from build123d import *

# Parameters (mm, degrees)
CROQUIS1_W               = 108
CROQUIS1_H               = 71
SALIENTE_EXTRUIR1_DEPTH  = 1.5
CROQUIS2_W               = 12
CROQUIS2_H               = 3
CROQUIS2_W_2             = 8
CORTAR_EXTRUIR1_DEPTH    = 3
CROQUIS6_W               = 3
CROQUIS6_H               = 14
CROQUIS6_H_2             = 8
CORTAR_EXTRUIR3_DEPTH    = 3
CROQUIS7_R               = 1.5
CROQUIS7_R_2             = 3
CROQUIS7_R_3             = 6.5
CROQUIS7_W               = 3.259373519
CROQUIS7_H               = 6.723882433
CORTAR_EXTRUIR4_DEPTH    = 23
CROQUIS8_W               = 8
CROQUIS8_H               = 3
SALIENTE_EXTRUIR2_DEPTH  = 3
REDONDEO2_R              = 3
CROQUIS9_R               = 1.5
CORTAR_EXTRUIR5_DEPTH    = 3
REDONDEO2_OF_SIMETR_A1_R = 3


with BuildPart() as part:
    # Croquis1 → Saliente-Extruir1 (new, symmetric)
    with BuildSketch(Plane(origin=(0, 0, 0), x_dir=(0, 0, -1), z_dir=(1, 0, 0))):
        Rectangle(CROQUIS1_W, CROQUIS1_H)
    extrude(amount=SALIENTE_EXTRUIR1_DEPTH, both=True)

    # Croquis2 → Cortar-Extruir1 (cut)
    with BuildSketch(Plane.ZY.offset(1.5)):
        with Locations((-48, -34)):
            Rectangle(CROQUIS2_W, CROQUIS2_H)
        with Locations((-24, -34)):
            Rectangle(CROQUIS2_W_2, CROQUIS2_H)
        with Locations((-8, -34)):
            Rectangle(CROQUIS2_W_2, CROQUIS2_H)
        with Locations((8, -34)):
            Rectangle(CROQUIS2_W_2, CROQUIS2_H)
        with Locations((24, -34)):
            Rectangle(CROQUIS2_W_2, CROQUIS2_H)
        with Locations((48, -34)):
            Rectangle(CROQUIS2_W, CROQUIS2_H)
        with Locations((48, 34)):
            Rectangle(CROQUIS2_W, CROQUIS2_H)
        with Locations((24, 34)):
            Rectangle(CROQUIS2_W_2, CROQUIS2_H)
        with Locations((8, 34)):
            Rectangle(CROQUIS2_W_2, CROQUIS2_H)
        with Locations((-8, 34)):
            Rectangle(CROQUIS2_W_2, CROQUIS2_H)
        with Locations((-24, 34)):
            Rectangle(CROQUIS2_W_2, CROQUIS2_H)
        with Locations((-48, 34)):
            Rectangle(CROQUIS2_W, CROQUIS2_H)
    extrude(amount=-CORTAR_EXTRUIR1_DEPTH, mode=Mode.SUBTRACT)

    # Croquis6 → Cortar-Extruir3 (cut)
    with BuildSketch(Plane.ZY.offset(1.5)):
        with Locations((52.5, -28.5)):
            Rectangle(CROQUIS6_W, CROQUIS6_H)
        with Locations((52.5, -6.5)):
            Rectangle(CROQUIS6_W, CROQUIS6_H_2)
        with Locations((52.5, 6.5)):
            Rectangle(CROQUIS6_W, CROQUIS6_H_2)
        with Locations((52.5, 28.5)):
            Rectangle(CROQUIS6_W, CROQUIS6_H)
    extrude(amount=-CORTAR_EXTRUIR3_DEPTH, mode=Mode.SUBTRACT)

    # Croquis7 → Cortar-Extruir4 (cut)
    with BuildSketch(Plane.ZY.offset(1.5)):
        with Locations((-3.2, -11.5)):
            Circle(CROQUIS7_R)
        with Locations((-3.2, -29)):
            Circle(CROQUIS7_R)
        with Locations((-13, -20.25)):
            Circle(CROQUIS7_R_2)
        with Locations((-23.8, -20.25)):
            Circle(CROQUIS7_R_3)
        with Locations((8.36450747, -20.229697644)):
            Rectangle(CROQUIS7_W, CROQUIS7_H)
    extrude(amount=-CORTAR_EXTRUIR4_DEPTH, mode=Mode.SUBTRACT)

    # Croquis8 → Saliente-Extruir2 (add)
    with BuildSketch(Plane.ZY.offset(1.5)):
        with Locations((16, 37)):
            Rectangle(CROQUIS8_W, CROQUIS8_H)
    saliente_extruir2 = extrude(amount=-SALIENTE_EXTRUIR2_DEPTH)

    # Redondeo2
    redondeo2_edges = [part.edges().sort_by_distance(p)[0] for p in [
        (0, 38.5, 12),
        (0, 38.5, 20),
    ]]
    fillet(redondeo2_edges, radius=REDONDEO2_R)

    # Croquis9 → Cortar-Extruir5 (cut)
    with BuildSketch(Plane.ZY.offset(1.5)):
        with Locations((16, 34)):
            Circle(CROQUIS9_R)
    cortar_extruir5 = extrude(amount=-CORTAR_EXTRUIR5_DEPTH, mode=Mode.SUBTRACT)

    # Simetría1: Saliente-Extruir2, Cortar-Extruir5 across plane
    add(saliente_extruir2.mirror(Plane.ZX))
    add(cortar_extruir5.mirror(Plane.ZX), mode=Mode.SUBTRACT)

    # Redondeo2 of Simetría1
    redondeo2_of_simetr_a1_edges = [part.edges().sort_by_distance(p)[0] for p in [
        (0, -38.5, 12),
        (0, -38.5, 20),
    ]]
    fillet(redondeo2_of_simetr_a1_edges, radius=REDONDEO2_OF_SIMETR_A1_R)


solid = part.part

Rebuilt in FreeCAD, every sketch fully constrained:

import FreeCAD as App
import Part
import Sketcher

V = App.Vector


def edges_at(feature, points):
    """Names of the edges that pass closest to the given points."""
    edges = feature.Shape.Edges
    near = lambda p: min(range(len(edges)), key=lambda i: edges[i].distToShape(Part.Vertex(*p))[0])
    return sorted({f"Edge{near(p) + 1}" for p in points})

doc = App.newDocument("Part")
body = doc.addObject("PartDesign::Body", "Body")

# Sketch on YZ plane
sketch1 = body.newObject("Sketcher::SketchObject", "Sketch")
sketch1.AttachmentSupport = (doc.getObject("YZ_Plane"), [""])
sketch1.MapMode = "FlatFace"
sketch1.addGeometry([
    Part.LineSegment(V(36, 54, 0), V(-36, 54, 0)),
    Part.LineSegment(V(-36, 54, 0), V(-36, -54, 0)),
    Part.LineSegment(V(-36, -54, 0), V(36, -54, 0)),
    Part.LineSegment(V(36, -54, 0), V(36, 54, 0)),
], False)
sketch1.addConstraint([
    Sketcher.Constraint("Coincident", 0, 2, 1, 1),
    Sketcher.Constraint("Coincident", 1, 2, 2, 1),
    Sketcher.Constraint("Coincident", 2, 2, 3, 1),
    Sketcher.Constraint("Coincident", 3, 2, 0, 1),
    Sketcher.Constraint("Horizontal", 0),
    Sketcher.Constraint("Vertical", 1),
    Sketcher.Constraint("Horizontal", 2),
    Sketcher.Constraint("Vertical", 3),
    Sketcher.Constraint("Symmetric", 0, 2, 2, 2, -1, 1),
    Sketcher.Constraint("DistanceX", 0, 2, 0, 1, 71.0),
    Sketcher.Constraint("DistanceY", 1, 2, 1, 1, 108.0),
])
pad1 = body.newObject("PartDesign::Pad", "Pad")
pad1.Profile = sketch1
pad1.Length = 3
pad1.Midplane = True

# Sketch on YZ plane
sketch2 = body.newObject("Sketcher::SketchObject", "Sketch001")
sketch2.AttachmentSupport = (doc.getObject("YZ_Plane"), [""])
sketch2.MapMode = "FlatFace"
sketch2.AttachmentOffset = App.Placement(V(0, 0, -1.5), App.Rotation())
sketch2.addGeometry([
    Part.LineSegment(V(-32.5, -54, 0), V(-35.5, -54, 0)),  # 0
    Part.LineSegment(V(-35.5, -54, 0), V(-35.5, -42, 0)),  # 1
    Part.LineSegment(V(-35.5, -42, 0), V(-32.5, -42, 0)),  # 2
    Part.LineSegment(V(-32.5, -42, 0), V(-32.5, -54, 0)),  # 3
    Part.LineSegment(V(-32.5, -28, 0), V(-35.5, -28, 0)),  # 4
    Part.LineSegment(V(-35.5, -28, 0), V(-35.5, -20, 0)),  # 5
    Part.LineSegment(V(-35.5, -20, 0), V(-32.5, -20, 0)),  # 6
    Part.LineSegment(V(-32.5, -20, 0), V(-32.5, -28, 0)),  # 7
    Part.LineSegment(V(-32.5, -12, 0), V(-35.5, -12, 0)),  # 8
    Part.LineSegment(V(-35.5, -12, 0), V(-35.5, -4, 0)),  # 9
    Part.LineSegment(V(-35.5, -4, 0), V(-32.5, -4, 0)),  # 10
    Part.LineSegment(V(-32.5, -4, 0), V(-32.5, -12, 0)),  # 11
    Part.LineSegment(V(-32.5, 4, 0), V(-35.5, 4, 0)),  # 12
    Part.LineSegment(V(-35.5, 4, 0), V(-35.5, 12, 0)),  # 13
    Part.LineSegment(V(-35.5, 12, 0), V(-32.5, 12, 0)),  # 14
    Part.LineSegment(V(-32.5, 12, 0), V(-32.5, 4, 0)),  # 15
    Part.LineSegment(V(-32.5, 20, 0), V(-35.5, 20, 0)),  # 16
    Part.LineSegment(V(-35.5, 20, 0), V(-35.5, 28, 0)),  # 17
    Part.LineSegment(V(-35.5, 28, 0), V(-32.5, 28, 0)),  # 18
    Part.LineSegment(V(-32.5, 28, 0), V(-32.5, 20, 0)),  # 19
    Part.LineSegment(V(-32.5, 42, 0), V(-35.5, 42, 0)),  # 20
    Part.LineSegment(V(-35.5, 42, 0), V(-35.5, 54, 0)),  # 21
    Part.LineSegment(V(-35.5, 54, 0), V(-32.5, 54, 0)),  # 22
    Part.LineSegment(V(-32.5, 54, 0), V(-32.5, 42, 0)),  # 23
    Part.LineSegment(V(35.5, 42, 0), V(32.5, 42, 0)),  # 24
    Part.LineSegment(V(32.5, 42, 0), V(32.5, 54, 0)),  # 25
    Part.LineSegment(V(32.5, 54, 0), V(35.5, 54, 0)),  # 26
    Part.LineSegment(V(35.5, 54, 0), V(35.5, 42, 0)),  # 27
    Part.LineSegment(V(35.5, 20, 0), V(32.5, 20, 0)),  # 28
    Part.LineSegment(V(32.5, 20, 0), V(32.5, 28, 0)),  # 29
    Part.LineSegment(V(32.5, 28, 0), V(35.5, 28, 0)),  # 30
    Part.LineSegment(V(35.5, 28, 0), V(35.5, 20, 0)),  # 31
    Part.LineSegment(V(35.5, 4, 0), V(32.5, 4, 0)),  # 32
    Part.LineSegment(V(32.5, 4, 0), V(32.5, 12, 0)),  # 33
    Part.LineSegment(V(32.5, 12, 0), V(35.5, 12, 0)),  # 34
    Part.LineSegment(V(35.5, 12, 0), V(35.5, 4, 0)),  # 35
    Part.LineSegment(V(35.5, -12, 0), V(32.5, -12, 0)),  # 36
    Part.LineSegment(V(32.5, -12, 0), V(32.5, -4, 0)),  # 37
    Part.LineSegment(V(32.5, -4, 0), V(35.5, -4, 0)),  # 38
    Part.LineSegment(V(35.5, -4, 0), V(35.5, -12, 0)),  # 39
    Part.LineSegment(V(35.5, -28, 0), V(32.5, -28, 0)),  # 40
    Part.LineSegment(V(32.5, -28, 0), V(32.5, -20, 0)),  # 41
    Part.LineSegment(V(32.5, -20, 0), V(35.5, -20, 0)),  # 42
    Part.LineSegment(V(35.5, -20, 0), V(35.5, -28, 0)),  # 43
    Part.LineSegment(V(35.5, -54, 0), V(32.5, -54, 0)),  # 44
    Part.LineSegment(V(32.5, -54, 0), V(32.5, -42, 0)),  # 45
    Part.LineSegment(V(32.5, -42, 0), V(35.5, -42, 0)),  # 46
    Part.LineSegment(V(35.5, -42, 0), V(35.5, -54, 0)),  # 47
], False)
sketch2.addConstraint([
    Sketcher.Constraint("Coincident", 0, 2, 1, 1),
    Sketcher.Constraint("Coincident", 1, 2, 2, 1),
    Sketcher.Constraint("Coincident", 2, 2, 3, 1),
    Sketcher.Constraint("Coincident", 3, 2, 0, 1),
    Sketcher.Constraint("Coincident", 4, 2, 5, 1),
    Sketcher.Constraint("Coincident", 5, 2, 6, 1),
    Sketcher.Constraint("Coincident", 6, 2, 7, 1),
    Sketcher.Constraint("Coincident", 7, 2, 4, 1),
    Sketcher.Constraint("Coincident", 8, 2, 9, 1),
    Sketcher.Constraint("Coincident", 9, 2, 10, 1),
    Sketcher.Constraint("Coincident", 10, 2, 11, 1),
    Sketcher.Constraint("Coincident", 11, 2, 8, 1),
    Sketcher.Constraint("Coincident", 12, 2, 13, 1),
    Sketcher.Constraint("Coincident", 13, 2, 14, 1),
    Sketcher.Constraint("Coincident", 14, 2, 15, 1),
    Sketcher.Constraint("Coincident", 15, 2, 12, 1),
    Sketcher.Constraint("Coincident", 16, 2, 17, 1),
    Sketcher.Constraint("Coincident", 17, 2, 18, 1),
    Sketcher.Constraint("Coincident", 18, 2, 19, 1),
    Sketcher.Constraint("Coincident", 19, 2, 16, 1),
    Sketcher.Constraint("Coincident", 20, 2, 21, 1),
    Sketcher.Constraint("Coincident", 21, 2, 22, 1),
    Sketcher.Constraint("Coincident", 22, 2, 23, 1),
    Sketcher.Constraint("Coincident", 23, 2, 20, 1),
    Sketcher.Constraint("Coincident", 24, 2, 25, 1),
    Sketcher.Constraint("Coincident", 25, 2, 26, 1),
    Sketcher.Constraint("Coincident", 26, 2, 27, 1),
    Sketcher.Constraint("Coincident", 27, 2, 24, 1),
    Sketcher.Constraint("Coincident", 28, 2, 29, 1),
    Sketcher.Constraint("Coincident", 29, 2, 30, 1),
    Sketcher.Constraint("Coincident", 30, 2, 31, 1),
    Sketcher.Constraint("Coincident", 31, 2, 28, 1),
    Sketcher.Constraint("Coincident", 32, 2, 33, 1),
    Sketcher.Constraint("Coincident", 33, 2, 34, 1),
    Sketcher.Constraint("Coincident", 34, 2, 35, 1),
    Sketcher.Constraint("Coincident", 35, 2, 32, 1),
    Sketcher.Constraint("Coincident", 36, 2, 37, 1),
    Sketcher.Constraint("Coincident", 37, 2, 38, 1),
    Sketcher.Constraint("Coincident", 38, 2, 39, 1),
    Sketcher.Constraint("Coincident", 39, 2, 36, 1),
    Sketcher.Constraint("Coincident", 40, 2, 41, 1),
    Sketcher.Constraint("Coincident", 41, 2, 42, 1),
    Sketcher.Constraint("Coincident", 42, 2, 43, 1),
    Sketcher.Constraint("Coincident", 43, 2, 40, 1),
    Sketcher.Constraint("Coincident", 44, 2, 45, 1),
    Sketcher.Constraint("Coincident", 45, 2, 46, 1),
    Sketcher.Constraint("Coincident", 46, 2, 47, 1),
    Sketcher.Constraint("Coincident", 47, 2, 44, 1),
    Sketcher.Constraint("Horizontal", 0),
    Sketcher.Constraint("Vertical", 1),
    Sketcher.Constraint("Horizontal", 2),
    Sketcher.Constraint("Vertical", 3),
    Sketcher.Constraint("Horizontal", 4),
    Sketcher.Constraint("Vertical", 5),
    Sketcher.Constraint("Horizontal", 6),
    Sketcher.Constraint("Vertical", 7),
    Sketcher.Constraint("Horizontal", 8),
    Sketcher.Constraint("Vertical", 9),
    Sketcher.Constraint("Horizontal", 10),
    Sketcher.Constraint("Vertical", 11),
    Sketcher.Constraint("Horizontal", 12),
    Sketcher.Constraint("Vertical", 13),
    Sketcher.Constraint("Horizontal", 14),
    Sketcher.Constraint("Vertical", 15),
    Sketcher.Constraint("Horizontal", 16),
    Sketcher.Constraint("Vertical", 17),
    Sketcher.Constraint("Horizontal", 18),
    Sketcher.Constraint("Vertical", 19),
    Sketcher.Constraint("Horizontal", 20),
    Sketcher.Constraint("Vertical", 21),
    Sketcher.Constraint("Horizontal", 22),
    Sketcher.Constraint("Vertical", 23),
    Sketcher.Constraint("Horizontal", 24),
    Sketcher.Constraint("Vertical", 25),
    Sketcher.Constraint("Horizontal", 26),
    Sketcher.Constraint("Vertical", 27),
    Sketcher.Constraint("Horizontal", 28),
    Sketcher.Constraint("Vertical", 29),
    Sketcher.Constraint("Horizontal", 30),
    Sketcher.Constraint("Vertical", 31),
    Sketcher.Constraint("Horizontal", 32),
    Sketcher.Constraint("Vertical", 33),
    Sketcher.Constraint("Horizontal", 34),
    Sketcher.Constraint("Vertical", 35),
    Sketcher.Constraint("Horizontal", 36),
    Sketcher.Constraint("Vertical", 37),
    Sketcher.Constraint("Horizontal", 38),
    Sketcher.Constraint("Vertical", 39),
    Sketcher.Constraint("Horizontal", 40),
    Sketcher.Constraint("Vertical", 41),
    Sketcher.Constraint("Horizontal", 42),
    Sketcher.Constraint("Vertical", 43),
    Sketcher.Constraint("Horizontal", 44),
    Sketcher.Constraint("Vertical", 45),
    Sketcher.Constraint("Horizontal", 46),
    Sketcher.Constraint("Vertical", 47),
    Sketcher.Constraint("Symmetric", 2, 2, 24, 2, -1, 1),
    Sketcher.Constraint("Symmetric", 0, 2, 26, 2, -1, 1),
    Sketcher.Constraint("Symmetric", 6, 2, 28, 2, -1, 1),
    Sketcher.Constraint("Symmetric", 4, 2, 30, 2, -1, 1),
    Sketcher.Constraint("Symmetric", 10, 2, 32, 2, -1, 1),
    Sketcher.Constraint("Symmetric", 8, 2, 34, 2, -1, 1),
    Sketcher.Constraint("Symmetric", 14, 2, 36, 2, -1, 1),
    Sketcher.Constraint("Symmetric", 12, 2, 38, 2, -1, 1),
    Sketcher.Constraint("Symmetric", 18, 2, 40, 2, -1, 1),
    Sketcher.Constraint("Symmetric", 16, 2, 42, 2, -1, 1),
    Sketcher.Constraint("Symmetric", 22, 2, 44, 2, -1, 1),
    Sketcher.Constraint("Symmetric", 20, 2, 46, 2, -1, 1),
    Sketcher.Constraint("Symmetric", 23, 2, 24, 2, -2),
    Sketcher.Constraint("Symmetric", 21, 2, 26, 2, -2),
    Sketcher.Constraint("Symmetric", 19, 2, 28, 2, -2),
    Sketcher.Constraint("Symmetric", 17, 2, 30, 2, -2),
    Sketcher.Constraint("Symmetric", 15, 2, 32, 2, -2),
    Sketcher.Constraint("Symmetric", 13, 2, 34, 2, -2),
    Sketcher.Constraint("Vertical", 1, 2, 4, 2),
    Sketcher.Constraint("Vertical", 3, 2, 6, 2),
    Sketcher.Constraint("Vertical", 5, 2, 8, 2),
    Sketcher.Constraint("Vertical", 7, 2, 10, 2),
    Sketcher.Constraint("Equal", 7, 9),
    Sketcher.Constraint("DistanceX", 0, 2, 0, 1, 3.0),
    Sketcher.Constraint("DistanceY", 1, 1, 1, 2, 12.0),
    Sketcher.Constraint("DistanceY", 5, 1, 5, 2, 8.0),
    Sketcher.Constraint("DistanceY", 0, 2, -1, 1, 54.0),
    Sketcher.Constraint("DistanceY", 4, 2, -1, 1, 28.0),
    Sketcher.Constraint("DistanceY", 8, 2, -1, 1, 12.0),
    Sketcher.Constraint("DistanceX", 23, 2, 24, 2, 65.0),
])
pocket1 = body.newObject("PartDesign::Pocket", "Pocket")
pocket1.Profile = sketch2
pocket1.Length = 3
pocket1.Reversed = True

# Sketch on YZ plane
sketch3 = body.newObject("Sketcher::SketchObject", "Sketch002")
sketch3.AttachmentSupport = (doc.getObject("YZ_Plane"), [""])
sketch3.MapMode = "FlatFace"
sketch3.AttachmentOffset = App.Placement(V(0, 0, -1.5), App.Rotation())
sketch3.addGeometry([
    Part.LineSegment(V(-21.5, 51, 0), V(-35.5, 51, 0)),  # 0
    Part.LineSegment(V(-35.5, 51, 0), V(-35.5, 54, 0)),  # 1
    Part.LineSegment(V(-35.5, 54, 0), V(-21.5, 54, 0)),  # 2
    Part.LineSegment(V(-21.5, 54, 0), V(-21.5, 51, 0)),  # 3
    Part.LineSegment(V(-2.5, 51, 0), V(-10.5, 51, 0)),  # 4
    Part.LineSegment(V(-10.5, 51, 0), V(-10.5, 54, 0)),  # 5
    Part.LineSegment(V(-10.5, 54, 0), V(-2.5, 54, 0)),  # 6
    Part.LineSegment(V(-2.5, 54, 0), V(-2.5, 51, 0)),  # 7
    Part.LineSegment(V(10.5, 51, 0), V(2.5, 51, 0)),  # 8
    Part.LineSegment(V(2.5, 51, 0), V(2.5, 54, 0)),  # 9
    Part.LineSegment(V(2.5, 54, 0), V(10.5, 54, 0)),  # 10
    Part.LineSegment(V(10.5, 54, 0), V(10.5, 51, 0)),  # 11
    Part.LineSegment(V(35.5, 51, 0), V(21.5, 51, 0)),  # 12
    Part.LineSegment(V(21.5, 51, 0), V(21.5, 54, 0)),  # 13
    Part.LineSegment(V(21.5, 54, 0), V(35.5, 54, 0)),  # 14
    Part.LineSegment(V(35.5, 54, 0), V(35.5, 51, 0)),  # 15
], False)
sketch3.addConstraint([
    Sketcher.Constraint("Coincident", 0, 2, 1, 1),
    Sketcher.Constraint("Coincident", 1, 2, 2, 1),
    Sketcher.Constraint("Coincident", 2, 2, 3, 1),
    Sketcher.Constraint("Coincident", 3, 2, 0, 1),
    Sketcher.Constraint("Coincident", 4, 2, 5, 1),
    Sketcher.Constraint("Coincident", 5, 2, 6, 1),
    Sketcher.Constraint("Coincident", 6, 2, 7, 1),
    Sketcher.Constraint("Coincident", 7, 2, 4, 1),
    Sketcher.Constraint("Coincident", 8, 2, 9, 1),
    Sketcher.Constraint("Coincident", 9, 2, 10, 1),
    Sketcher.Constraint("Coincident", 10, 2, 11, 1),
    Sketcher.Constraint("Coincident", 11, 2, 8, 1),
    Sketcher.Constraint("Coincident", 12, 2, 13, 1),
    Sketcher.Constraint("Coincident", 13, 2, 14, 1),
    Sketcher.Constraint("Coincident", 14, 2, 15, 1),
    Sketcher.Constraint("Coincident", 15, 2, 12, 1),
    Sketcher.Constraint("Horizontal", 0),
    Sketcher.Constraint("Vertical", 1),
    Sketcher.Constraint("Horizontal", 2),
    Sketcher.Constraint("Vertical", 3),
    Sketcher.Constraint("Horizontal", 4),
    Sketcher.Constraint("Vertical", 5),
    Sketcher.Constraint("Horizontal", 6),
    Sketcher.Constraint("Vertical", 7),
    Sketcher.Constraint("Horizontal", 8),
    Sketcher.Constraint("Vertical", 9),
    Sketcher.Constraint("Horizontal", 10),
    Sketcher.Constraint("Vertical", 11),
    Sketcher.Constraint("Horizontal", 12),
    Sketcher.Constraint("Vertical", 13),
    Sketcher.Constraint("Horizontal", 14),
    Sketcher.Constraint("Vertical", 15),
    Sketcher.Constraint("Symmetric", 7, 2, 8, 2, -2),
    Sketcher.Constraint("Symmetric", 5, 2, 10, 2, -2),
    Sketcher.Constraint("Symmetric", 3, 2, 12, 2, -2),
    Sketcher.Constraint("Symmetric", 1, 2, 14, 2, -2),
    Sketcher.Constraint("Horizontal", 3, 2, 4, 2),
    Sketcher.Constraint("Horizontal", 2, 2, 5, 2),
    Sketcher.Constraint("DistanceX", 0, 2, 0, 1, 14.0),
    Sketcher.Constraint("DistanceX", 4, 2, 4, 1, 8.0),
    Sketcher.Constraint("DistanceY", 1, 1, 1, 2, 3.0),
    Sketcher.Constraint("DistanceY", -1, 1, 0, 2, 51.0),
    Sketcher.Constraint("DistanceX", 3, 2, 4, 2, 11.0),
    Sketcher.Constraint("DistanceX", 7, 2, 8, 2, 5.0),
])
pocket2 = body.newObject("PartDesign::Pocket", "Pocket001")
pocket2.Profile = sketch3
pocket2.Length = 3
pocket2.Reversed = True

# Sketch on YZ plane
sketch4 = body.newObject("Sketcher::SketchObject", "Sketch003")
sketch4.AttachmentSupport = (doc.getObject("YZ_Plane"), [""])
sketch4.MapMode = "FlatFace"
sketch4.AttachmentOffset = App.Placement(V(0, 0, -1.5), App.Rotation())
sketch4.addGeometry([
    Part.Circle(V(-11.5, -3.2, 0), V(0, 0, 1), 1.5),  # 0
    Part.Circle(V(-29, -3.2, 0), V(0, 0, 1), 1.5),  # 1
    Part.Circle(V(-20.2, -13, 0), V(0, 0, 1), 3),  # 2
    Part.Circle(V(-20.2, -23.8, 0), V(0, 0, 1), 6.5),  # 3
    Part.LineSegment(V(-16.9, 6.7, 0), V(-23.6, 6.7, 0)),  # 4
    Part.LineSegment(V(-23.6, 6.7, 0), V(-23.6, 10, 0)),  # 5
    Part.LineSegment(V(-23.6, 10, 0), V(-16.9, 10, 0)),  # 6
    Part.LineSegment(V(-16.9, 10, 0), V(-16.9, 6.7, 0)),  # 7
], False)
sketch4.addConstraint([
    Sketcher.Constraint("Coincident", 4, 2, 5, 1),
    Sketcher.Constraint("Coincident", 5, 2, 6, 1),
    Sketcher.Constraint("Coincident", 6, 2, 7, 1),
    Sketcher.Constraint("Coincident", 7, 2, 4, 1),
    Sketcher.Constraint("Horizontal", 4),
    Sketcher.Constraint("Vertical", 5),
    Sketcher.Constraint("Horizontal", 6),
    Sketcher.Constraint("Vertical", 7),
    Sketcher.Constraint("Equal", 0, 1),
    Sketcher.Constraint("Horizontal", 0, 3, 1, 3),
    Sketcher.Constraint("Vertical", 2, 3, 3, 3),
    Sketcher.Constraint("Diameter", 0, 3.0),
    Sketcher.Constraint("Diameter", 2, 6.0),
    Sketcher.Constraint("Diameter", 3, 13.0),
    Sketcher.Constraint("DistanceX", 1, 3, -1, 1, 29.0),
    Sketcher.Constraint("DistanceY", 2, 3, -1, 1, 13.0),
    Sketcher.Constraint("DistanceX", 0, 3, -1, 1, 11.5),
    Sketcher.Constraint("DistanceY", 0, 3, -1, 1, 3.2),
    Sketcher.Constraint("DistanceY", 3, 3, -1, 1, 23.8),
    Sketcher.Constraint("DistanceX", 2, 3, -1, 1, 20.25),
    Sketcher.Constraint("DistanceX", 4, 2, 4, 1, 6.723882),
    Sketcher.Constraint("DistanceY", 5, 1, 5, 2, 3.259374),
    Sketcher.Constraint("DistanceX", 4, 2, -1, 1, 23.591639),
    Sketcher.Constraint("DistanceY", -1, 1, 4, 2, 6.734821),
])
pocket3 = body.newObject("PartDesign::Pocket", "Pocket002")
pocket3.Profile = sketch4
pocket3.Length = 23
pocket3.Reversed = True

# Sketch on YZ plane
sketch5 = body.newObject("Sketcher::SketchObject", "Sketch004")
sketch5.AttachmentSupport = (doc.getObject("YZ_Plane"), [""])
sketch5.MapMode = "FlatFace"
sketch5.AttachmentOffset = App.Placement(V(0, 0, -1.5), App.Rotation())
sketch5.addGeometry([
    Part.LineSegment(V(38.5, 12, 0), V(35.5, 12, 0)),
    Part.LineSegment(V(35.5, 12, 0), V(35.5, 20, 0)),
    Part.LineSegment(V(35.5, 20, 0), V(38.5, 20, 0)),
    Part.LineSegment(V(38.5, 20, 0), V(38.5, 12, 0)),
], False)
sketch5.addConstraint([
    Sketcher.Constraint("Coincident", 0, 2, 1, 1),
    Sketcher.Constraint("Coincident", 1, 2, 2, 1),
    Sketcher.Constraint("Coincident", 2, 2, 3, 1),
    Sketcher.Constraint("Coincident", 3, 2, 0, 1),
    Sketcher.Constraint("Horizontal", 0),
    Sketcher.Constraint("Vertical", 1),
    Sketcher.Constraint("Horizontal", 2),
    Sketcher.Constraint("Vertical", 3),
    Sketcher.Constraint("DistanceX", 0, 2, 0, 1, 3.0),
    Sketcher.Constraint("DistanceY", 1, 1, 1, 2, 8.0),
    Sketcher.Constraint("DistanceY", -1, 1, 0, 2, 12.0),
    Sketcher.Constraint("DistanceX", -1, 1, 0, 2, 35.5),
])
pad2 = body.newObject("PartDesign::Pad", "Pad001")
pad2.Profile = sketch5
pad2.Length = 3
doc.recompute()

fillet = body.newObject("PartDesign::Fillet", "Fillet")
fillet.Base = (pad2, edges_at(pad2, [(0, 38.5, 12), (0, 38.5, 20)]))
fillet.Radius = 3

# Sketch on YZ plane
sketch6 = body.newObject("Sketcher::SketchObject", "Sketch005")
sketch6.AttachmentSupport = (doc.getObject("YZ_Plane"), [""])
sketch6.MapMode = "FlatFace"
sketch6.AttachmentOffset = App.Placement(V(0, 0, -1.5), App.Rotation())
sketch6.addGeometry(Part.Circle(V(34, 16, 0), V(0, 0, 1), 1.5), False)
sketch6.addConstraint([
    Sketcher.Constraint("Diameter", 0, 3.0),
    Sketcher.Constraint("DistanceX", -1, 1, 0, 3, 34.0),
    Sketcher.Constraint("DistanceY", -1, 1, 0, 3, 16.0),
])
pocket4 = body.newObject("PartDesign::Pocket", "Pocket003")
pocket4.Profile = sketch6
pocket4.Length = 3
pocket4.Reversed = True
doc.recompute()

mirrored = body.newObject("PartDesign::Mirrored", "Mirrored")
mirrored.Originals = [pad2, pocket4]
mirrored.MirrorPlane = (doc.getObject("XZ_Plane"), [""])
body.Tip = mirrored
doc.recompute()

fillet2 = body.newObject("PartDesign::Fillet", "Fillet001")
fillet2.Base = (mirrored, edges_at(mirrored, [(0, -38.5, 12), (0, -38.5, 20)]))
fillet2.Radius = 3

doc.recompute()
